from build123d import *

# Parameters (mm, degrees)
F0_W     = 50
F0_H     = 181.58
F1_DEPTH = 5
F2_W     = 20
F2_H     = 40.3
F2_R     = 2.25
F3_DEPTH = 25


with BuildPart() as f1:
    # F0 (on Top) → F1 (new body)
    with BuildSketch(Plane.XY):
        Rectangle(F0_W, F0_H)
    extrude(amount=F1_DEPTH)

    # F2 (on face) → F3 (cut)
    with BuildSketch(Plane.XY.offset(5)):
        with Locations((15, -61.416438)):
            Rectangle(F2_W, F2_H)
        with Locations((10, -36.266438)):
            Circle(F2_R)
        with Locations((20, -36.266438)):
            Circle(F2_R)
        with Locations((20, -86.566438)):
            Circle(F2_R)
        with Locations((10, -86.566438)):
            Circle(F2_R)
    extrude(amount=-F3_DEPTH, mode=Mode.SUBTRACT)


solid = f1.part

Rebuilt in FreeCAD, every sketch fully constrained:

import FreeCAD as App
import Part
import Sketcher

doc = App.newDocument("Part")
body = doc.addObject("PartDesign::Body", "Body")

sketch1 = doc.addObject("Sketcher::SketchObject", "Sketch")
body.addObject(sketch1)
sketch1.AttachmentSupport = (doc.XY_Plane, [""])
sketch1.MapMode = "FlatFace"
sketch1.addGeometry([
    Part.LineSegment(App.Vector(-25, 90.79, 0), App.Vector(-25, -90.79, 0)),
    Part.LineSegment(App.Vector(-25, -90.79, 0), App.Vector(25, -90.79, 0)),
    Part.LineSegment(App.Vector(25, -90.79, 0), App.Vector(25, 90.79, 0)),
    Part.LineSegment(App.Vector(25, 90.79, 0), App.Vector(-25, 90.79, 0)),
], False)
sketch1.addConstraint([
    Sketcher.Constraint("Coincident", 0, 2, 1, 1),
    Sketcher.Constraint("Coincident", 1, 2, 2, 1),
    Sketcher.Constraint("Coincident", 2, 2, 3, 1),
    Sketcher.Constraint("Coincident", 3, 2, 0, 1),
    Sketcher.Constraint("Vertical", 0),
    Sketcher.Constraint("Horizontal", 1),
    Sketcher.Constraint("Vertical", 2),
    Sketcher.Constraint("Horizontal", 3),
    Sketcher.Constraint("Symmetric", 0, 2, 2, 2, -1, 1),
    Sketcher.Constraint("DistanceX", 1, 1, 1, 2, 50.0),
    Sketcher.Constraint("DistanceY", 0, 2, 0, 1, 181.58),
])
pad1 = doc.addObject("PartDesign::Pad", "Pad")
body.addObject(pad1)
pad1.Profile = sketch1
pad1.Length = 5

sketch2 = doc.addObject("Sketcher::SketchObject", "Sketch001")
body.addObject(sketch2)
sketch2.AttachmentSupport = (doc.XY_Plane, [""])
sketch2.MapMode = "FlatFace"
sketch2.AttachmentOffset = App.Placement(App.Vector(0, 0, 5), App.Rotation())
sketch2.addGeometry([
    Part.LineSegment(App.Vector(5, -41.266438, 0), App.Vector(5, -81.566438, 0)),
    Part.LineSegment(App.Vector(5, -81.566438, 0), App.Vector(25, -81.566438, 0)),
    Part.LineSegment(App.Vector(25, -81.566438, 0), App.Vector(25, -41.266438, 0)),
    Part.LineSegment(App.Vector(25, -41.266438, 0), App.Vector(5, -41.266438, 0)),
    Part.Circle(App.Vector(10, -36.266438, 0), App.Vector(0, 0, 1), 2.25),
    Part.Circle(App.Vector(20, -36.266438, 0), App.Vector(0, 0, 1), 2.25),
    Part.Circle(App.Vector(20, -86.566438, 0), App.Vector(0, 0, 1), 2.25),
    Part.Circle(App.Vector(10, -86.566438, 0), App.Vector(0, 0, 1), 2.25),
], False)
sketch2.addConstraint([
    Sketcher.Constraint("Coincident", 0, 2, 1, 1),
    Sketcher.Constraint("Coincident", 1, 2, 2, 1),
    Sketcher.Constraint("Coincident", 2, 2, 3, 1),
    Sketcher.Constraint("Coincident", 3, 2, 0, 1),
    Sketcher.Constraint("Vertical", 0),
    Sketcher.Constraint("Horizontal", 1),
    Sketcher.Constraint("Vertical", 2),
    Sketcher.Constraint("Horizontal", 3),
    Sketcher.Constraint("Equal", 4, 5),
    Sketcher.Constraint("Equal", 5, 6),
    Sketcher.Constraint("Equal", 6, 7),
    Sketcher.Constraint("Horizontal", 4, 3, 5, 3),
    Sketcher.Constraint("Horizontal", 6, 3, 7, 3),
    Sketcher.Constraint("Vertical", 5, 3, 6, 3),
    Sketcher.Constraint("Vertical", 4, 3, 7, 3),
    Sketcher.Constraint("Diameter", 4, 4.5),
    Sketcher.Constraint("DistanceX", 1, 1, 1, 2, 20.0),
    Sketcher.Constraint("DistanceY", 0, 2, 0, 1, 40.3),
    Sketcher.Constraint("DistanceX", -1, 1, 4, 3, 10.0),
    Sketcher.Constraint("DistanceX", -1, 1, 5, 3, 20.0),
    Sketcher.Constraint("DistanceX", -1, 1, 0, 2, 5.0),
    Sketcher.Constraint("DistanceY", 7, 3, 0, 2, 5.0),
    Sketcher.Constraint("DistanceY", 2, 2, 5, 3, 5.0),
    Sketcher.Constraint("DistanceY", 6, 3, -1, 1, 86.566438),
])
pocket1 = doc.addObject("PartDesign::Pocket", "Pocket")
body.addObject(pocket1)
pocket1.Profile = sketch2
pocket1.Length = 25

doc.recompute()
